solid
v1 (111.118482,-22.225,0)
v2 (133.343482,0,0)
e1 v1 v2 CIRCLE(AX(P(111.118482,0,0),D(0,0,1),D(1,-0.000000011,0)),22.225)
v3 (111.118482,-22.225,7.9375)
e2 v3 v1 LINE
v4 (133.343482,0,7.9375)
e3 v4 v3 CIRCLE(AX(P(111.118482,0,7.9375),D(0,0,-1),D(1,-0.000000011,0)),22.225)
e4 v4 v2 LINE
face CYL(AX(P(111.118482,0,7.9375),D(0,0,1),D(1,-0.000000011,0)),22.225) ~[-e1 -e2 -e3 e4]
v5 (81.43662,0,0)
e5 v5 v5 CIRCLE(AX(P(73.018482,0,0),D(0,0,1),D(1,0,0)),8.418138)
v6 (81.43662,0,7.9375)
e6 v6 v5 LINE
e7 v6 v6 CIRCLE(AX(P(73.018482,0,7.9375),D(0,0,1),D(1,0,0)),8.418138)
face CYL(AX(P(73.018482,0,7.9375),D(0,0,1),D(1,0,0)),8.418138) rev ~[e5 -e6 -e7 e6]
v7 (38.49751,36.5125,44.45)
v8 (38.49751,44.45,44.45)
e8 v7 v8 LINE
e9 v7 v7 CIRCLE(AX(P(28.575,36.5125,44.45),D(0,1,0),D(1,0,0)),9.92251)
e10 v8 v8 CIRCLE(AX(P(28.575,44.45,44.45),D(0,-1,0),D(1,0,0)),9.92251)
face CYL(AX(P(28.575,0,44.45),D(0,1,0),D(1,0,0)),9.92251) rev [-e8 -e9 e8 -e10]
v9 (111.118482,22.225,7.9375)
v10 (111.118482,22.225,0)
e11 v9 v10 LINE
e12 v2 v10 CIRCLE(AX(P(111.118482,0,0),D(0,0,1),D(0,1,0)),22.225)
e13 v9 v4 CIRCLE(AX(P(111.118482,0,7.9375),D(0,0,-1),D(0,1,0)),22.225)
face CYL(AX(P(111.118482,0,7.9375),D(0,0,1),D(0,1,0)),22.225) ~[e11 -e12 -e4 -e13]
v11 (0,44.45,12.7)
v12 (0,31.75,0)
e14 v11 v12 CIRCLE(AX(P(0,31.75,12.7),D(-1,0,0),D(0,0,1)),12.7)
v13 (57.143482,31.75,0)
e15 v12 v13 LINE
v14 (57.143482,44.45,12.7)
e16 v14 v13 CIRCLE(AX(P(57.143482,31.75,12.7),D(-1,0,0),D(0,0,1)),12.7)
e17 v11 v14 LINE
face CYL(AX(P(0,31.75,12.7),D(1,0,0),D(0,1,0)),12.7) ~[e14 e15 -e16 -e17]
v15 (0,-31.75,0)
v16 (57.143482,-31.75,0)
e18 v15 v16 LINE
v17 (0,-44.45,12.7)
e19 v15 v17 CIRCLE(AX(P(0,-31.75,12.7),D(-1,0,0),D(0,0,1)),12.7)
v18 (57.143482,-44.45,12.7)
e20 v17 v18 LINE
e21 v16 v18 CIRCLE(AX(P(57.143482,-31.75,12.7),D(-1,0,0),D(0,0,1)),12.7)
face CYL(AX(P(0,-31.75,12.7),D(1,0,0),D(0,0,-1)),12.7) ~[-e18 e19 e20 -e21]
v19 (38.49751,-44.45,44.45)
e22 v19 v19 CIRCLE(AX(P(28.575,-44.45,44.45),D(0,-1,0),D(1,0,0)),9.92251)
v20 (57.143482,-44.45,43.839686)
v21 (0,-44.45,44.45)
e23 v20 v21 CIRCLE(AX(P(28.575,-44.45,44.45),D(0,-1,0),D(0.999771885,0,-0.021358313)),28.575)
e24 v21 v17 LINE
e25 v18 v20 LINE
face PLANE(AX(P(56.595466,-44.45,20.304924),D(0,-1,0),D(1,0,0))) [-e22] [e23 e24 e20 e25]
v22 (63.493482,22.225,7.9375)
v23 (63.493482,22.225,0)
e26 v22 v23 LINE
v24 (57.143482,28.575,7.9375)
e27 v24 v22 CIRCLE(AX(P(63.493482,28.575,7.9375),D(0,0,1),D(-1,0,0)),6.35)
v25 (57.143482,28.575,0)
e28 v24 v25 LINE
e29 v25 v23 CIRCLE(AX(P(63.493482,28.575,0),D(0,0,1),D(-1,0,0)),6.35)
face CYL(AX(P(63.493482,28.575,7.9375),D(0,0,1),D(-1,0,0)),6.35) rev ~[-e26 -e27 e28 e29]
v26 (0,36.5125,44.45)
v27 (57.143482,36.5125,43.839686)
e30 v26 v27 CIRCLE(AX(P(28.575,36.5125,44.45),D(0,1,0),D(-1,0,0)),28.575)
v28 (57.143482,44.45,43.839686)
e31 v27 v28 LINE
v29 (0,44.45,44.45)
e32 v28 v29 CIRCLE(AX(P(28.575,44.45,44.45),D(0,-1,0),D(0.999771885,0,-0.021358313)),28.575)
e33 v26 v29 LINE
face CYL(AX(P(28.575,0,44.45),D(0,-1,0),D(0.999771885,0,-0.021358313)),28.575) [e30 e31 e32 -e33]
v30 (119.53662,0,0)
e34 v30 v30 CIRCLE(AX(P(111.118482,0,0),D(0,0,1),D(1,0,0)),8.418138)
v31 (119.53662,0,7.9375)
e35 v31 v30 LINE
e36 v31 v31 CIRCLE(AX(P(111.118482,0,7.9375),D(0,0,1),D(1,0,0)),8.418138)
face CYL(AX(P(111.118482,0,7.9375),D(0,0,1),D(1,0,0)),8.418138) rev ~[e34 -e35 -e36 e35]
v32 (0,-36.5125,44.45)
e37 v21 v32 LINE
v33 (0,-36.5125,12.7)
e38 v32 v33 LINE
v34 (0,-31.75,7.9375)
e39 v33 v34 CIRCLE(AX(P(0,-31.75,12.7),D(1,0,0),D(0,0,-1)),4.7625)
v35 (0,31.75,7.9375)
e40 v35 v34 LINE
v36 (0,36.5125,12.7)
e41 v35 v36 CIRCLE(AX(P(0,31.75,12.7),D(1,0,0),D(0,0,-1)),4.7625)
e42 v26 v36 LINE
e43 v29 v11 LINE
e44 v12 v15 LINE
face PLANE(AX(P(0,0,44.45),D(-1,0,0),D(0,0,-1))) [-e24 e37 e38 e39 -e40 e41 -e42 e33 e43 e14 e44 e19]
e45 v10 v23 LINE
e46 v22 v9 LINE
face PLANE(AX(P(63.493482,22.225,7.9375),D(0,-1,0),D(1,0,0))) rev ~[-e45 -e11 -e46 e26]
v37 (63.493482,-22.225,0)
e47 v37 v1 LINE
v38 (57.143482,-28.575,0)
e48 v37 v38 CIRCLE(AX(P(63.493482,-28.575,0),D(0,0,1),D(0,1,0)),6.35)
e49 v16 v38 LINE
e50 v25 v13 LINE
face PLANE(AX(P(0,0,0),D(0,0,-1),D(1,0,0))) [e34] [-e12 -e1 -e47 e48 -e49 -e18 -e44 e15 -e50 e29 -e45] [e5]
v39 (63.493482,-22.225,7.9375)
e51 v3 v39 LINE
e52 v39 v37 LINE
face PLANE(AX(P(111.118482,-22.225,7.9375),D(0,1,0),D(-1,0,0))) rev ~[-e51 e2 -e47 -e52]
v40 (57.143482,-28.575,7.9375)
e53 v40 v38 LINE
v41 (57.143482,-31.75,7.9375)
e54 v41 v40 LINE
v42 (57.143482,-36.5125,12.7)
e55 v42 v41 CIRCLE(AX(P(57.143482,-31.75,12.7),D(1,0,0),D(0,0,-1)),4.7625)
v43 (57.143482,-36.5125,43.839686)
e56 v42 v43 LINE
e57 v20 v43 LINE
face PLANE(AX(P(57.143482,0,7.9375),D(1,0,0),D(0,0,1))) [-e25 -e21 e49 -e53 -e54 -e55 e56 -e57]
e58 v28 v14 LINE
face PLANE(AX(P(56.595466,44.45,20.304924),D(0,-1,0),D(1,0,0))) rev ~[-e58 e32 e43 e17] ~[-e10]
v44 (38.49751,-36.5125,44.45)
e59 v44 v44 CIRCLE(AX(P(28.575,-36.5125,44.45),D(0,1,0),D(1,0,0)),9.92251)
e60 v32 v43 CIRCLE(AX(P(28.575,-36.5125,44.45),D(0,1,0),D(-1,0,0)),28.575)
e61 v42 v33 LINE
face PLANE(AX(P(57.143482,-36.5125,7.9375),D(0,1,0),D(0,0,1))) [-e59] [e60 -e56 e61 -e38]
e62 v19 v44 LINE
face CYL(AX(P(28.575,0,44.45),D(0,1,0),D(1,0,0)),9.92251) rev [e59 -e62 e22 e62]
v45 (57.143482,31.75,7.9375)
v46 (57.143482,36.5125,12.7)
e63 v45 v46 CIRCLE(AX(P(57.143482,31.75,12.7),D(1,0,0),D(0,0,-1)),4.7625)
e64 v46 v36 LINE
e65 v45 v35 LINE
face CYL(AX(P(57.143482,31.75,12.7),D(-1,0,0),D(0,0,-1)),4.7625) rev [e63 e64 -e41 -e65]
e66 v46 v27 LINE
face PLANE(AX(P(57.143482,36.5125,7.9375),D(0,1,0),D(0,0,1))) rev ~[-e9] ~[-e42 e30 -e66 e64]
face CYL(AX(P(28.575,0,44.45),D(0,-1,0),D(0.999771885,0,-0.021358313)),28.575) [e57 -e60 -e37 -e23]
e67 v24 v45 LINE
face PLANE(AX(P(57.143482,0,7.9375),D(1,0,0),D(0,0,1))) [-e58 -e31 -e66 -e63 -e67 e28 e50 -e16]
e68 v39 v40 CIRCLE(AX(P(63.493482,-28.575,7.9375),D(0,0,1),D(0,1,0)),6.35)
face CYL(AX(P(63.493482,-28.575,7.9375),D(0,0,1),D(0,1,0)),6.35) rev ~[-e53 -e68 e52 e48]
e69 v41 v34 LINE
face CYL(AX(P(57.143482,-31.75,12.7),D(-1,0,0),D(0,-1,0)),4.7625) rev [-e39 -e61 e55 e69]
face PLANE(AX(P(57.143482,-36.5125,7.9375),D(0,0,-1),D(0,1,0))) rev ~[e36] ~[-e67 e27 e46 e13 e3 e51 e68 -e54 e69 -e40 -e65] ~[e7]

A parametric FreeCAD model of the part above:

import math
import FreeCAD as App
import Part
import Sketcher
Q = App.Units.Quantity


def edges_at(feature, points):
    """Names of the edges that pass closest to the given points."""
    edges = feature.Shape.Edges
    near = lambda p: min(range(len(edges)), key=lambda i: edges[i].distToShape(Part.Vertex(*p))[0])
    return sorted({f"Edge{near(p) + 1}" for p in points})

doc = App.newDocument("Part")
params = doc.addObject("Spreadsheet::Sheet", "Params")
for row, (alias, value) in enumerate([
    ("sketch1_width", "3 in"),
    ("sketch1_radius", "1.125 in"),
    ("sketch1_height", "1.75 in"),
    ("sketch1_height2", "0.3125 in"),
    ("pad1_length", "3.5 in"),
    ("sketch2_width", "3 in"),
    ("sketch2_radius", "0.25 in"),
    ("sketch2_radius2", "0.875 in"),
    ("sketch2_height", "1.75 in"),
    ("sketch3_width", "2.875 in"),
    ("fillet_radius", "0.5 in"),
    ("fillet2_radius", "0.1875 in"),
], start=1):
    params.set(f"A{row}", alias)
    params.set(f"B{row}", "=" + value)
    params.setAlias(f"B{row}", alias)

body = doc.addObject("PartDesign::Body", "Body")

# Sketch on XZ plane
sketch1 = body.newObject("Sketcher::SketchObject", "Sketch")
sketch1.AttachmentSupport = (doc.getObject("XZ_Plane"), [""])
sketch1.MapMode = "FlatFace"
sketch1.addGeometry([
    Part.LineSegment(App.Vector(0, 44.45, 0), App.Vector(0, 0, 0)),  # 0
    Part.LineSegment(App.Vector(0, 0, 0), App.Vector(133.343482, 0, 0)),  # 1
    Part.LineSegment(App.Vector(133.343482, 0, 0), App.Vector(133.343482, 7.9375, 0)),  # 2
    Part.LineSegment(App.Vector(133.343482, 7.9375, 0), App.Vector(57.143482, 7.9375, 0)),  # 3
    Part.LineSegment(App.Vector(57.143482, 7.9375, 0), App.Vector(57.143482, 43.839686, 0)),  # 4
    Part.ArcOfCircle(Part.Circle(App.Vector(28.575, 44.45, 0), App.Vector(0, 0, 1), 28.575), math.radians(-1.223834), math.radians(180)),  # 5
    Part.Circle(App.Vector(28.575, 44.45, 0), App.Vector(0, 0, 1), 9.92251),  # 6
], False)
sketch1.addConstraint([
    Sketcher.Constraint("Coincident", 0, 2, 1, 1),
    Sketcher.Constraint("Coincident", 1, 2, 2, 1),
    Sketcher.Constraint("Coincident", 2, 2, 3, 1),
    Sketcher.Constraint("Coincident", 3, 2, 4, 1),
    Sketcher.Constraint("Coincident", 4, 2, 5, 1),
    Sketcher.Constraint("Tangent", 5, 2, 0, 1),
    Sketcher.Constraint("Vertical", 0),
    Sketcher.Constraint("Horizontal", 1),
    Sketcher.Constraint("Vertical", 2),
    Sketcher.Constraint("Horizontal", 3),
    Sketcher.Constraint("Vertical", 4),
    Sketcher.Constraint("Coincident", 0, 2, -1, 1),
    Sketcher.Constraint("Coincident", 6, 3, 5, 3),
    Sketcher.Constraint("DistanceX", 3, 2, 3, 1, Q("3 in")),
    Sketcher.Constraint("Radius", 5, Q("1.125 in")),
    Sketcher.Constraint("Diameter", 6, Q("0.7813 in")),
    Sketcher.Constraint("DistanceY", 0, 2, 0, 1, Q("1.75 in")),
    Sketcher.Constraint("DistanceY", 2, 1, 2, 2, Q("0.3125 in")),
    Sketcher.Constraint("DistanceX", 1, 1, 1, 2, 133.343482),
])
sketch1.setExpression("Constraints[13]", "Params.sketch1_width")
sketch1.setExpression("Constraints[14]", "Params.sketch1_radius")
sketch1.setExpression("Constraints[16]", "Params.sketch1_height")
sketch1.setExpression("Constraints[17]", "Params.sketch1_height2")
pad1 = body.newObject("PartDesign::Pad", "Pad")
pad1.Profile = sketch1
pad1.setExpression("Length", "Params.pad1_length")
pad1.Midplane = True

# Sketch on XY plane
sketch2 = body.newObject("Sketcher::SketchObject", "Sketch001")
sketch2.AttachmentSupport = (doc.getObject("XY_Plane"), [""])
sketch2.MapMode = "FlatFace"
sketch2.AttachmentOffset = App.Placement(App.Vector(0, 0, 0.3125 * 25.4), App.Rotation())
sketch2.addGeometry([
    Part.ArcOfCircle(Part.Circle(App.Vector(63.493482, 28.575, 0), App.Vector(0, 0, 1), 6.35), math.radians(180), math.radians(270)),  # 0
    Part.LineSegment(App.Vector(63.493482, 22.225, 0), App.Vector(111.118482, 22.225, 0)),  # 1
    Part.ArcOfCircle(Part.Circle(App.Vector(111.118482, 0, 0), App.Vector(0, 0, 1), 22.225), math.radians(-0.000001), math.radians(90)),  # 2
    Part.LineSegment(App.Vector(133.343482, 0, 0), App.Vector(133.343482, 44.45, 0)),  # 3
    Part.LineSegment(App.Vector(133.343482, 44.45, 0), App.Vector(57.143482, 44.45, 0)),  # 4
    Part.LineSegment(App.Vector(57.143482, 44.45, 0), App.Vector(57.143482, 28.575, 0)),  # 5
    Part.LineSegment(App.Vector(133.343482, -44.45, 0), App.Vector(133.343482, 0, 0)),  # 6
    Part.ArcOfCircle(Part.Circle(App.Vector(111.118482, 0, 0), App.Vector(0, 0, 1), 22.225), math.radians(-90), math.radians(-0.000001)),  # 7
    Part.LineSegment(App.Vector(111.118482, -22.225, 0), App.Vector(63.493482, -22.225, 0)),  # 8
    Part.ArcOfCircle(Part.Circle(App.Vector(63.493482, -28.575, 0), App.Vector(0, 0, 1), 6.35), math.radians(90), math.radians(180)),  # 9
    Part.LineSegment(App.Vector(57.143482, -28.575, 0), App.Vector(57.143482, -44.45, 0)),  # 10
    Part.LineSegment(App.Vector(57.143482, -44.45, 0), App.Vector(133.343482, -44.45, 0)),  # 11
    Part.Circle(App.Vector(73.018482, 0, 0), App.Vector(0, 0, 1), 8.418138),  # 12
    Part.Circle(App.Vector(111.118482, 0, 0), App.Vector(0, 0, 1), 8.418138),  # 13
], False)
sketch2.addConstraint([
    Sketcher.Constraint("Tangent", 0, 2, 1, 1),
    Sketcher.Constraint("Tangent", 1, 2, 2, 2),
    Sketcher.Constraint("Tangent", 2, 1, 3, 1),
    Sketcher.Constraint("Coincident", 3, 2, 4, 1),
    Sketcher.Constraint("Coincident", 4, 2, 5, 1),
    Sketcher.Constraint("Tangent", 5, 2, 0, 1),
    Sketcher.Constraint("Tangent", 6, 2, 7, 2),
    Sketcher.Constraint("Tangent", 7, 1, 8, 1),
    Sketcher.Constraint("Tangent", 8, 2, 9, 1),
    Sketcher.Constraint("Tangent", 9, 2, 10, 1),
    Sketcher.Constraint("Coincident", 10, 2, 11, 1),
    Sketcher.Constraint("Coincident", 11, 2, 6, 1),
    Sketcher.Constraint("Horizontal", 1),
    Sketcher.Constraint("Vertical", 3),
    Sketcher.Constraint("Horizontal", 4),
    Sketcher.Constraint("Vertical", 5),
    Sketcher.Constraint("Vertical", 6),
    Sketcher.Constraint("Horizontal", 8),
    Sketcher.Constraint("Vertical", 10),
    Sketcher.Constraint("Horizontal", 11),
    Sketcher.Constraint("Coincident", 7, 3, 2, 3),
    Sketcher.Constraint("Coincident", 13, 3, 2, 3),
    Sketcher.Constraint("Equal", 2, 7),
    Sketcher.Constraint("Equal", 0, 9),
    Sketcher.Constraint("Equal", 12, 13),
    Sketcher.Constraint("Symmetric", 0, 3, 9, 3, -1),
    Sketcher.Constraint("PointOnObject", 12, 3, -1),
    Sketcher.Constraint("Equal", 3, 6),
    Sketcher.Constraint("DistanceX", 4, 2, 4, 1, Q("3 in")),
    Sketcher.Constraint("Radius", 0, Q("0.25 in")),
    Sketcher.Constraint("Radius", 2, Q("0.875 in")),
    Sketcher.Constraint("DistanceY", 3, 1, 3, 2, Q("1.75 in")),
    Sketcher.Constraint("DistanceX", 12, 3, 2, 3, Q("1.5 in")),
    Sketcher.Constraint("Diameter", 12, 16.836277),
    Sketcher.Constraint("DistanceX", -1, 1, 0, 3, 63.493482),
])
sketch2.setExpression("Constraints[28]", "Params.sketch2_width")
sketch2.setExpression("Constraints[29]", "Params.sketch2_radius")
sketch2.setExpression("Constraints[30]", "Params.sketch2_radius2")
sketch2.setExpression("Constraints[31]", "Params.sketch2_height")
pocket1 = body.newObject("PartDesign::Pocket", "Pocket")
pocket1.Profile = sketch2
pocket1.Type = "ThroughAll"

# Sketch on YZ plane
sketch3 = body.newObject("Sketcher::SketchObject", "Sketch002")
sketch3.AttachmentSupport = (doc.getObject("YZ_Plane"), [""])
sketch3.MapMode = "FlatFace"
sketch3.AttachmentOffset = App.Placement(App.Vector(0, 0, 57.143482), App.Rotation())
sketch3.addGeometry([
    Part.LineSegment(App.Vector(-36.5125, 76.540396, 0), App.Vector(-36.5125, 7.9375, 0)),
    Part.LineSegment(App.Vector(-36.5125, 7.9375, 0), App.Vector(36.5125, 7.9375, 0)),
    Part.LineSegment(App.Vector(36.5125, 7.9375, 0), App.Vector(36.5125, 76.540396, 0)),
    Part.LineSegment(App.Vector(36.5125, 76.540396, 0), App.Vector(-36.5125, 76.540396, 0)),
], False)
sketch3.addConstraint([
    Sketcher.Constraint("Coincident", 0, 2, 1, 1),
    Sketcher.Constraint("Coincident", 1, 2, 2, 1),
    Sketcher.Constraint("Coincident", 2, 2, 3, 1),
    Sketcher.Constraint("Coincident", 3, 2, 0, 1),
    Sketcher.Constraint("Vertical", 0),
    Sketcher.Constraint("Horizontal", 1),
    Sketcher.Constraint("Vertical", 2),
    Sketcher.Constraint("Horizontal", 3),
    Sketcher.Constraint("DistanceX", 1, 1, 1, 2, Q("2.875 in")),
    Sketcher.Constraint("DistanceX", 0, 2, -1, 1, Q("1.4375 in")),
    Sketcher.Constraint("DistanceY", -1, 1, 0, 2, Q("0.3125 in")),
    Sketcher.Constraint("DistanceY", 0, 2, 0, 1, 68.602896),
])
sketch3.setExpression("Constraints[8]", "Params.sketch3_width")
pocket2 = body.newObject("PartDesign::Pocket", "Pocket001")
pocket2.Profile = sketch3
pocket2.Type = "ThroughAll"
pocket2.Midplane = True
doc.recompute()

fillet = body.newObject("PartDesign::Fillet", "Fillet")
fillet.Base = (pocket2, edges_at(pocket2, [(28.572, -44.45, 0), (28.572, 44.45, 0)]))
fillet.setExpression("Radius", "Params.fillet_radius")
doc.recompute()

fillet2 = body.newObject("PartDesign::Fillet", "Fillet001")
fillet2.Base = (fillet, edges_at(fillet, [(28.572, 36.513, 7.938), (28.572, -36.513, 7.938)]))
fillet2.setExpression("Radius", "Params.fillet2_radius")

doc.recompute()
